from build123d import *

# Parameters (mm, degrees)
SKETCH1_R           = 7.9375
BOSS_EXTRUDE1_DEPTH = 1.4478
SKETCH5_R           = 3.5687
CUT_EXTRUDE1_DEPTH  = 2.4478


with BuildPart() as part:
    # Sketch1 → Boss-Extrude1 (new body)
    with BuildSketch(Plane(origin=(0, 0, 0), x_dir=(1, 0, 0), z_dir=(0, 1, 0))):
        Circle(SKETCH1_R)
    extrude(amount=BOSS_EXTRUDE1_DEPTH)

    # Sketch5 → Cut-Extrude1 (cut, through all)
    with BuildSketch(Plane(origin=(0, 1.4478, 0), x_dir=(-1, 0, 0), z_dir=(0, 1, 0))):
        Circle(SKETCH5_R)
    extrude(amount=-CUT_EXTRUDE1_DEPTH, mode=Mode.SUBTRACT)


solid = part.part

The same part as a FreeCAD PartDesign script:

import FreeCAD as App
import Part
import Sketcher
Q = App.Units.Quantity

doc = App.newDocument("Part")
body = doc.addObject("PartDesign::Body", "Body")

sketch1 = body.newObject("Sketcher::SketchObject", "Sketch")
sketch1.AttachmentSupport = (doc.getObject("XZ_Plane"), [""])
sketch1.MapMode = "FlatFace"
sketch1.addGeometry(Part.Circle(App.Vector(0, 0, 0), App.Vector(0, 0, 1), 7.9375), False)
sketch1.addConstraint([
    Sketcher.Constraint("Coincident", 0, 3, -1, 1),
    Sketcher.Constraint("Diameter", 0, Q("0.625 in")),
])
pad1 = body.newObject("PartDesign::Pad", "Pad")
pad1.Profile = sketch1
pad1.Length = Q("0.057 in")
pad1.Reversed = True

sketch2 = body.newObject("Sketcher::SketchObject", "Sketch001")
sketch2.AttachmentSupport = (doc.getObject("XZ_Plane"), [""])
sketch2.MapMode = "FlatFace"
sketch2.AttachmentOffset = App.Placement(App.Vector(0, 0, -0.057 * 25.4), App.Rotation())
sketch2.addGeometry(Part.Circle(App.Vector(0, 0, 0), App.Vector(0, 0, 1), 3.5687), False)
sketch2.addConstraint([
    Sketcher.Constraint("Coincident", 0, 3, -1, 1),
    Sketcher.Constraint("Diameter", 0, Q("0.281 in")),
])
pocket1 = body.newObject("PartDesign::Pocket", "Pocket")
pocket1.Profile = sketch2
pocket1.Type = "ThroughAll"
pocket1.Reversed = True

doc.recompute()
